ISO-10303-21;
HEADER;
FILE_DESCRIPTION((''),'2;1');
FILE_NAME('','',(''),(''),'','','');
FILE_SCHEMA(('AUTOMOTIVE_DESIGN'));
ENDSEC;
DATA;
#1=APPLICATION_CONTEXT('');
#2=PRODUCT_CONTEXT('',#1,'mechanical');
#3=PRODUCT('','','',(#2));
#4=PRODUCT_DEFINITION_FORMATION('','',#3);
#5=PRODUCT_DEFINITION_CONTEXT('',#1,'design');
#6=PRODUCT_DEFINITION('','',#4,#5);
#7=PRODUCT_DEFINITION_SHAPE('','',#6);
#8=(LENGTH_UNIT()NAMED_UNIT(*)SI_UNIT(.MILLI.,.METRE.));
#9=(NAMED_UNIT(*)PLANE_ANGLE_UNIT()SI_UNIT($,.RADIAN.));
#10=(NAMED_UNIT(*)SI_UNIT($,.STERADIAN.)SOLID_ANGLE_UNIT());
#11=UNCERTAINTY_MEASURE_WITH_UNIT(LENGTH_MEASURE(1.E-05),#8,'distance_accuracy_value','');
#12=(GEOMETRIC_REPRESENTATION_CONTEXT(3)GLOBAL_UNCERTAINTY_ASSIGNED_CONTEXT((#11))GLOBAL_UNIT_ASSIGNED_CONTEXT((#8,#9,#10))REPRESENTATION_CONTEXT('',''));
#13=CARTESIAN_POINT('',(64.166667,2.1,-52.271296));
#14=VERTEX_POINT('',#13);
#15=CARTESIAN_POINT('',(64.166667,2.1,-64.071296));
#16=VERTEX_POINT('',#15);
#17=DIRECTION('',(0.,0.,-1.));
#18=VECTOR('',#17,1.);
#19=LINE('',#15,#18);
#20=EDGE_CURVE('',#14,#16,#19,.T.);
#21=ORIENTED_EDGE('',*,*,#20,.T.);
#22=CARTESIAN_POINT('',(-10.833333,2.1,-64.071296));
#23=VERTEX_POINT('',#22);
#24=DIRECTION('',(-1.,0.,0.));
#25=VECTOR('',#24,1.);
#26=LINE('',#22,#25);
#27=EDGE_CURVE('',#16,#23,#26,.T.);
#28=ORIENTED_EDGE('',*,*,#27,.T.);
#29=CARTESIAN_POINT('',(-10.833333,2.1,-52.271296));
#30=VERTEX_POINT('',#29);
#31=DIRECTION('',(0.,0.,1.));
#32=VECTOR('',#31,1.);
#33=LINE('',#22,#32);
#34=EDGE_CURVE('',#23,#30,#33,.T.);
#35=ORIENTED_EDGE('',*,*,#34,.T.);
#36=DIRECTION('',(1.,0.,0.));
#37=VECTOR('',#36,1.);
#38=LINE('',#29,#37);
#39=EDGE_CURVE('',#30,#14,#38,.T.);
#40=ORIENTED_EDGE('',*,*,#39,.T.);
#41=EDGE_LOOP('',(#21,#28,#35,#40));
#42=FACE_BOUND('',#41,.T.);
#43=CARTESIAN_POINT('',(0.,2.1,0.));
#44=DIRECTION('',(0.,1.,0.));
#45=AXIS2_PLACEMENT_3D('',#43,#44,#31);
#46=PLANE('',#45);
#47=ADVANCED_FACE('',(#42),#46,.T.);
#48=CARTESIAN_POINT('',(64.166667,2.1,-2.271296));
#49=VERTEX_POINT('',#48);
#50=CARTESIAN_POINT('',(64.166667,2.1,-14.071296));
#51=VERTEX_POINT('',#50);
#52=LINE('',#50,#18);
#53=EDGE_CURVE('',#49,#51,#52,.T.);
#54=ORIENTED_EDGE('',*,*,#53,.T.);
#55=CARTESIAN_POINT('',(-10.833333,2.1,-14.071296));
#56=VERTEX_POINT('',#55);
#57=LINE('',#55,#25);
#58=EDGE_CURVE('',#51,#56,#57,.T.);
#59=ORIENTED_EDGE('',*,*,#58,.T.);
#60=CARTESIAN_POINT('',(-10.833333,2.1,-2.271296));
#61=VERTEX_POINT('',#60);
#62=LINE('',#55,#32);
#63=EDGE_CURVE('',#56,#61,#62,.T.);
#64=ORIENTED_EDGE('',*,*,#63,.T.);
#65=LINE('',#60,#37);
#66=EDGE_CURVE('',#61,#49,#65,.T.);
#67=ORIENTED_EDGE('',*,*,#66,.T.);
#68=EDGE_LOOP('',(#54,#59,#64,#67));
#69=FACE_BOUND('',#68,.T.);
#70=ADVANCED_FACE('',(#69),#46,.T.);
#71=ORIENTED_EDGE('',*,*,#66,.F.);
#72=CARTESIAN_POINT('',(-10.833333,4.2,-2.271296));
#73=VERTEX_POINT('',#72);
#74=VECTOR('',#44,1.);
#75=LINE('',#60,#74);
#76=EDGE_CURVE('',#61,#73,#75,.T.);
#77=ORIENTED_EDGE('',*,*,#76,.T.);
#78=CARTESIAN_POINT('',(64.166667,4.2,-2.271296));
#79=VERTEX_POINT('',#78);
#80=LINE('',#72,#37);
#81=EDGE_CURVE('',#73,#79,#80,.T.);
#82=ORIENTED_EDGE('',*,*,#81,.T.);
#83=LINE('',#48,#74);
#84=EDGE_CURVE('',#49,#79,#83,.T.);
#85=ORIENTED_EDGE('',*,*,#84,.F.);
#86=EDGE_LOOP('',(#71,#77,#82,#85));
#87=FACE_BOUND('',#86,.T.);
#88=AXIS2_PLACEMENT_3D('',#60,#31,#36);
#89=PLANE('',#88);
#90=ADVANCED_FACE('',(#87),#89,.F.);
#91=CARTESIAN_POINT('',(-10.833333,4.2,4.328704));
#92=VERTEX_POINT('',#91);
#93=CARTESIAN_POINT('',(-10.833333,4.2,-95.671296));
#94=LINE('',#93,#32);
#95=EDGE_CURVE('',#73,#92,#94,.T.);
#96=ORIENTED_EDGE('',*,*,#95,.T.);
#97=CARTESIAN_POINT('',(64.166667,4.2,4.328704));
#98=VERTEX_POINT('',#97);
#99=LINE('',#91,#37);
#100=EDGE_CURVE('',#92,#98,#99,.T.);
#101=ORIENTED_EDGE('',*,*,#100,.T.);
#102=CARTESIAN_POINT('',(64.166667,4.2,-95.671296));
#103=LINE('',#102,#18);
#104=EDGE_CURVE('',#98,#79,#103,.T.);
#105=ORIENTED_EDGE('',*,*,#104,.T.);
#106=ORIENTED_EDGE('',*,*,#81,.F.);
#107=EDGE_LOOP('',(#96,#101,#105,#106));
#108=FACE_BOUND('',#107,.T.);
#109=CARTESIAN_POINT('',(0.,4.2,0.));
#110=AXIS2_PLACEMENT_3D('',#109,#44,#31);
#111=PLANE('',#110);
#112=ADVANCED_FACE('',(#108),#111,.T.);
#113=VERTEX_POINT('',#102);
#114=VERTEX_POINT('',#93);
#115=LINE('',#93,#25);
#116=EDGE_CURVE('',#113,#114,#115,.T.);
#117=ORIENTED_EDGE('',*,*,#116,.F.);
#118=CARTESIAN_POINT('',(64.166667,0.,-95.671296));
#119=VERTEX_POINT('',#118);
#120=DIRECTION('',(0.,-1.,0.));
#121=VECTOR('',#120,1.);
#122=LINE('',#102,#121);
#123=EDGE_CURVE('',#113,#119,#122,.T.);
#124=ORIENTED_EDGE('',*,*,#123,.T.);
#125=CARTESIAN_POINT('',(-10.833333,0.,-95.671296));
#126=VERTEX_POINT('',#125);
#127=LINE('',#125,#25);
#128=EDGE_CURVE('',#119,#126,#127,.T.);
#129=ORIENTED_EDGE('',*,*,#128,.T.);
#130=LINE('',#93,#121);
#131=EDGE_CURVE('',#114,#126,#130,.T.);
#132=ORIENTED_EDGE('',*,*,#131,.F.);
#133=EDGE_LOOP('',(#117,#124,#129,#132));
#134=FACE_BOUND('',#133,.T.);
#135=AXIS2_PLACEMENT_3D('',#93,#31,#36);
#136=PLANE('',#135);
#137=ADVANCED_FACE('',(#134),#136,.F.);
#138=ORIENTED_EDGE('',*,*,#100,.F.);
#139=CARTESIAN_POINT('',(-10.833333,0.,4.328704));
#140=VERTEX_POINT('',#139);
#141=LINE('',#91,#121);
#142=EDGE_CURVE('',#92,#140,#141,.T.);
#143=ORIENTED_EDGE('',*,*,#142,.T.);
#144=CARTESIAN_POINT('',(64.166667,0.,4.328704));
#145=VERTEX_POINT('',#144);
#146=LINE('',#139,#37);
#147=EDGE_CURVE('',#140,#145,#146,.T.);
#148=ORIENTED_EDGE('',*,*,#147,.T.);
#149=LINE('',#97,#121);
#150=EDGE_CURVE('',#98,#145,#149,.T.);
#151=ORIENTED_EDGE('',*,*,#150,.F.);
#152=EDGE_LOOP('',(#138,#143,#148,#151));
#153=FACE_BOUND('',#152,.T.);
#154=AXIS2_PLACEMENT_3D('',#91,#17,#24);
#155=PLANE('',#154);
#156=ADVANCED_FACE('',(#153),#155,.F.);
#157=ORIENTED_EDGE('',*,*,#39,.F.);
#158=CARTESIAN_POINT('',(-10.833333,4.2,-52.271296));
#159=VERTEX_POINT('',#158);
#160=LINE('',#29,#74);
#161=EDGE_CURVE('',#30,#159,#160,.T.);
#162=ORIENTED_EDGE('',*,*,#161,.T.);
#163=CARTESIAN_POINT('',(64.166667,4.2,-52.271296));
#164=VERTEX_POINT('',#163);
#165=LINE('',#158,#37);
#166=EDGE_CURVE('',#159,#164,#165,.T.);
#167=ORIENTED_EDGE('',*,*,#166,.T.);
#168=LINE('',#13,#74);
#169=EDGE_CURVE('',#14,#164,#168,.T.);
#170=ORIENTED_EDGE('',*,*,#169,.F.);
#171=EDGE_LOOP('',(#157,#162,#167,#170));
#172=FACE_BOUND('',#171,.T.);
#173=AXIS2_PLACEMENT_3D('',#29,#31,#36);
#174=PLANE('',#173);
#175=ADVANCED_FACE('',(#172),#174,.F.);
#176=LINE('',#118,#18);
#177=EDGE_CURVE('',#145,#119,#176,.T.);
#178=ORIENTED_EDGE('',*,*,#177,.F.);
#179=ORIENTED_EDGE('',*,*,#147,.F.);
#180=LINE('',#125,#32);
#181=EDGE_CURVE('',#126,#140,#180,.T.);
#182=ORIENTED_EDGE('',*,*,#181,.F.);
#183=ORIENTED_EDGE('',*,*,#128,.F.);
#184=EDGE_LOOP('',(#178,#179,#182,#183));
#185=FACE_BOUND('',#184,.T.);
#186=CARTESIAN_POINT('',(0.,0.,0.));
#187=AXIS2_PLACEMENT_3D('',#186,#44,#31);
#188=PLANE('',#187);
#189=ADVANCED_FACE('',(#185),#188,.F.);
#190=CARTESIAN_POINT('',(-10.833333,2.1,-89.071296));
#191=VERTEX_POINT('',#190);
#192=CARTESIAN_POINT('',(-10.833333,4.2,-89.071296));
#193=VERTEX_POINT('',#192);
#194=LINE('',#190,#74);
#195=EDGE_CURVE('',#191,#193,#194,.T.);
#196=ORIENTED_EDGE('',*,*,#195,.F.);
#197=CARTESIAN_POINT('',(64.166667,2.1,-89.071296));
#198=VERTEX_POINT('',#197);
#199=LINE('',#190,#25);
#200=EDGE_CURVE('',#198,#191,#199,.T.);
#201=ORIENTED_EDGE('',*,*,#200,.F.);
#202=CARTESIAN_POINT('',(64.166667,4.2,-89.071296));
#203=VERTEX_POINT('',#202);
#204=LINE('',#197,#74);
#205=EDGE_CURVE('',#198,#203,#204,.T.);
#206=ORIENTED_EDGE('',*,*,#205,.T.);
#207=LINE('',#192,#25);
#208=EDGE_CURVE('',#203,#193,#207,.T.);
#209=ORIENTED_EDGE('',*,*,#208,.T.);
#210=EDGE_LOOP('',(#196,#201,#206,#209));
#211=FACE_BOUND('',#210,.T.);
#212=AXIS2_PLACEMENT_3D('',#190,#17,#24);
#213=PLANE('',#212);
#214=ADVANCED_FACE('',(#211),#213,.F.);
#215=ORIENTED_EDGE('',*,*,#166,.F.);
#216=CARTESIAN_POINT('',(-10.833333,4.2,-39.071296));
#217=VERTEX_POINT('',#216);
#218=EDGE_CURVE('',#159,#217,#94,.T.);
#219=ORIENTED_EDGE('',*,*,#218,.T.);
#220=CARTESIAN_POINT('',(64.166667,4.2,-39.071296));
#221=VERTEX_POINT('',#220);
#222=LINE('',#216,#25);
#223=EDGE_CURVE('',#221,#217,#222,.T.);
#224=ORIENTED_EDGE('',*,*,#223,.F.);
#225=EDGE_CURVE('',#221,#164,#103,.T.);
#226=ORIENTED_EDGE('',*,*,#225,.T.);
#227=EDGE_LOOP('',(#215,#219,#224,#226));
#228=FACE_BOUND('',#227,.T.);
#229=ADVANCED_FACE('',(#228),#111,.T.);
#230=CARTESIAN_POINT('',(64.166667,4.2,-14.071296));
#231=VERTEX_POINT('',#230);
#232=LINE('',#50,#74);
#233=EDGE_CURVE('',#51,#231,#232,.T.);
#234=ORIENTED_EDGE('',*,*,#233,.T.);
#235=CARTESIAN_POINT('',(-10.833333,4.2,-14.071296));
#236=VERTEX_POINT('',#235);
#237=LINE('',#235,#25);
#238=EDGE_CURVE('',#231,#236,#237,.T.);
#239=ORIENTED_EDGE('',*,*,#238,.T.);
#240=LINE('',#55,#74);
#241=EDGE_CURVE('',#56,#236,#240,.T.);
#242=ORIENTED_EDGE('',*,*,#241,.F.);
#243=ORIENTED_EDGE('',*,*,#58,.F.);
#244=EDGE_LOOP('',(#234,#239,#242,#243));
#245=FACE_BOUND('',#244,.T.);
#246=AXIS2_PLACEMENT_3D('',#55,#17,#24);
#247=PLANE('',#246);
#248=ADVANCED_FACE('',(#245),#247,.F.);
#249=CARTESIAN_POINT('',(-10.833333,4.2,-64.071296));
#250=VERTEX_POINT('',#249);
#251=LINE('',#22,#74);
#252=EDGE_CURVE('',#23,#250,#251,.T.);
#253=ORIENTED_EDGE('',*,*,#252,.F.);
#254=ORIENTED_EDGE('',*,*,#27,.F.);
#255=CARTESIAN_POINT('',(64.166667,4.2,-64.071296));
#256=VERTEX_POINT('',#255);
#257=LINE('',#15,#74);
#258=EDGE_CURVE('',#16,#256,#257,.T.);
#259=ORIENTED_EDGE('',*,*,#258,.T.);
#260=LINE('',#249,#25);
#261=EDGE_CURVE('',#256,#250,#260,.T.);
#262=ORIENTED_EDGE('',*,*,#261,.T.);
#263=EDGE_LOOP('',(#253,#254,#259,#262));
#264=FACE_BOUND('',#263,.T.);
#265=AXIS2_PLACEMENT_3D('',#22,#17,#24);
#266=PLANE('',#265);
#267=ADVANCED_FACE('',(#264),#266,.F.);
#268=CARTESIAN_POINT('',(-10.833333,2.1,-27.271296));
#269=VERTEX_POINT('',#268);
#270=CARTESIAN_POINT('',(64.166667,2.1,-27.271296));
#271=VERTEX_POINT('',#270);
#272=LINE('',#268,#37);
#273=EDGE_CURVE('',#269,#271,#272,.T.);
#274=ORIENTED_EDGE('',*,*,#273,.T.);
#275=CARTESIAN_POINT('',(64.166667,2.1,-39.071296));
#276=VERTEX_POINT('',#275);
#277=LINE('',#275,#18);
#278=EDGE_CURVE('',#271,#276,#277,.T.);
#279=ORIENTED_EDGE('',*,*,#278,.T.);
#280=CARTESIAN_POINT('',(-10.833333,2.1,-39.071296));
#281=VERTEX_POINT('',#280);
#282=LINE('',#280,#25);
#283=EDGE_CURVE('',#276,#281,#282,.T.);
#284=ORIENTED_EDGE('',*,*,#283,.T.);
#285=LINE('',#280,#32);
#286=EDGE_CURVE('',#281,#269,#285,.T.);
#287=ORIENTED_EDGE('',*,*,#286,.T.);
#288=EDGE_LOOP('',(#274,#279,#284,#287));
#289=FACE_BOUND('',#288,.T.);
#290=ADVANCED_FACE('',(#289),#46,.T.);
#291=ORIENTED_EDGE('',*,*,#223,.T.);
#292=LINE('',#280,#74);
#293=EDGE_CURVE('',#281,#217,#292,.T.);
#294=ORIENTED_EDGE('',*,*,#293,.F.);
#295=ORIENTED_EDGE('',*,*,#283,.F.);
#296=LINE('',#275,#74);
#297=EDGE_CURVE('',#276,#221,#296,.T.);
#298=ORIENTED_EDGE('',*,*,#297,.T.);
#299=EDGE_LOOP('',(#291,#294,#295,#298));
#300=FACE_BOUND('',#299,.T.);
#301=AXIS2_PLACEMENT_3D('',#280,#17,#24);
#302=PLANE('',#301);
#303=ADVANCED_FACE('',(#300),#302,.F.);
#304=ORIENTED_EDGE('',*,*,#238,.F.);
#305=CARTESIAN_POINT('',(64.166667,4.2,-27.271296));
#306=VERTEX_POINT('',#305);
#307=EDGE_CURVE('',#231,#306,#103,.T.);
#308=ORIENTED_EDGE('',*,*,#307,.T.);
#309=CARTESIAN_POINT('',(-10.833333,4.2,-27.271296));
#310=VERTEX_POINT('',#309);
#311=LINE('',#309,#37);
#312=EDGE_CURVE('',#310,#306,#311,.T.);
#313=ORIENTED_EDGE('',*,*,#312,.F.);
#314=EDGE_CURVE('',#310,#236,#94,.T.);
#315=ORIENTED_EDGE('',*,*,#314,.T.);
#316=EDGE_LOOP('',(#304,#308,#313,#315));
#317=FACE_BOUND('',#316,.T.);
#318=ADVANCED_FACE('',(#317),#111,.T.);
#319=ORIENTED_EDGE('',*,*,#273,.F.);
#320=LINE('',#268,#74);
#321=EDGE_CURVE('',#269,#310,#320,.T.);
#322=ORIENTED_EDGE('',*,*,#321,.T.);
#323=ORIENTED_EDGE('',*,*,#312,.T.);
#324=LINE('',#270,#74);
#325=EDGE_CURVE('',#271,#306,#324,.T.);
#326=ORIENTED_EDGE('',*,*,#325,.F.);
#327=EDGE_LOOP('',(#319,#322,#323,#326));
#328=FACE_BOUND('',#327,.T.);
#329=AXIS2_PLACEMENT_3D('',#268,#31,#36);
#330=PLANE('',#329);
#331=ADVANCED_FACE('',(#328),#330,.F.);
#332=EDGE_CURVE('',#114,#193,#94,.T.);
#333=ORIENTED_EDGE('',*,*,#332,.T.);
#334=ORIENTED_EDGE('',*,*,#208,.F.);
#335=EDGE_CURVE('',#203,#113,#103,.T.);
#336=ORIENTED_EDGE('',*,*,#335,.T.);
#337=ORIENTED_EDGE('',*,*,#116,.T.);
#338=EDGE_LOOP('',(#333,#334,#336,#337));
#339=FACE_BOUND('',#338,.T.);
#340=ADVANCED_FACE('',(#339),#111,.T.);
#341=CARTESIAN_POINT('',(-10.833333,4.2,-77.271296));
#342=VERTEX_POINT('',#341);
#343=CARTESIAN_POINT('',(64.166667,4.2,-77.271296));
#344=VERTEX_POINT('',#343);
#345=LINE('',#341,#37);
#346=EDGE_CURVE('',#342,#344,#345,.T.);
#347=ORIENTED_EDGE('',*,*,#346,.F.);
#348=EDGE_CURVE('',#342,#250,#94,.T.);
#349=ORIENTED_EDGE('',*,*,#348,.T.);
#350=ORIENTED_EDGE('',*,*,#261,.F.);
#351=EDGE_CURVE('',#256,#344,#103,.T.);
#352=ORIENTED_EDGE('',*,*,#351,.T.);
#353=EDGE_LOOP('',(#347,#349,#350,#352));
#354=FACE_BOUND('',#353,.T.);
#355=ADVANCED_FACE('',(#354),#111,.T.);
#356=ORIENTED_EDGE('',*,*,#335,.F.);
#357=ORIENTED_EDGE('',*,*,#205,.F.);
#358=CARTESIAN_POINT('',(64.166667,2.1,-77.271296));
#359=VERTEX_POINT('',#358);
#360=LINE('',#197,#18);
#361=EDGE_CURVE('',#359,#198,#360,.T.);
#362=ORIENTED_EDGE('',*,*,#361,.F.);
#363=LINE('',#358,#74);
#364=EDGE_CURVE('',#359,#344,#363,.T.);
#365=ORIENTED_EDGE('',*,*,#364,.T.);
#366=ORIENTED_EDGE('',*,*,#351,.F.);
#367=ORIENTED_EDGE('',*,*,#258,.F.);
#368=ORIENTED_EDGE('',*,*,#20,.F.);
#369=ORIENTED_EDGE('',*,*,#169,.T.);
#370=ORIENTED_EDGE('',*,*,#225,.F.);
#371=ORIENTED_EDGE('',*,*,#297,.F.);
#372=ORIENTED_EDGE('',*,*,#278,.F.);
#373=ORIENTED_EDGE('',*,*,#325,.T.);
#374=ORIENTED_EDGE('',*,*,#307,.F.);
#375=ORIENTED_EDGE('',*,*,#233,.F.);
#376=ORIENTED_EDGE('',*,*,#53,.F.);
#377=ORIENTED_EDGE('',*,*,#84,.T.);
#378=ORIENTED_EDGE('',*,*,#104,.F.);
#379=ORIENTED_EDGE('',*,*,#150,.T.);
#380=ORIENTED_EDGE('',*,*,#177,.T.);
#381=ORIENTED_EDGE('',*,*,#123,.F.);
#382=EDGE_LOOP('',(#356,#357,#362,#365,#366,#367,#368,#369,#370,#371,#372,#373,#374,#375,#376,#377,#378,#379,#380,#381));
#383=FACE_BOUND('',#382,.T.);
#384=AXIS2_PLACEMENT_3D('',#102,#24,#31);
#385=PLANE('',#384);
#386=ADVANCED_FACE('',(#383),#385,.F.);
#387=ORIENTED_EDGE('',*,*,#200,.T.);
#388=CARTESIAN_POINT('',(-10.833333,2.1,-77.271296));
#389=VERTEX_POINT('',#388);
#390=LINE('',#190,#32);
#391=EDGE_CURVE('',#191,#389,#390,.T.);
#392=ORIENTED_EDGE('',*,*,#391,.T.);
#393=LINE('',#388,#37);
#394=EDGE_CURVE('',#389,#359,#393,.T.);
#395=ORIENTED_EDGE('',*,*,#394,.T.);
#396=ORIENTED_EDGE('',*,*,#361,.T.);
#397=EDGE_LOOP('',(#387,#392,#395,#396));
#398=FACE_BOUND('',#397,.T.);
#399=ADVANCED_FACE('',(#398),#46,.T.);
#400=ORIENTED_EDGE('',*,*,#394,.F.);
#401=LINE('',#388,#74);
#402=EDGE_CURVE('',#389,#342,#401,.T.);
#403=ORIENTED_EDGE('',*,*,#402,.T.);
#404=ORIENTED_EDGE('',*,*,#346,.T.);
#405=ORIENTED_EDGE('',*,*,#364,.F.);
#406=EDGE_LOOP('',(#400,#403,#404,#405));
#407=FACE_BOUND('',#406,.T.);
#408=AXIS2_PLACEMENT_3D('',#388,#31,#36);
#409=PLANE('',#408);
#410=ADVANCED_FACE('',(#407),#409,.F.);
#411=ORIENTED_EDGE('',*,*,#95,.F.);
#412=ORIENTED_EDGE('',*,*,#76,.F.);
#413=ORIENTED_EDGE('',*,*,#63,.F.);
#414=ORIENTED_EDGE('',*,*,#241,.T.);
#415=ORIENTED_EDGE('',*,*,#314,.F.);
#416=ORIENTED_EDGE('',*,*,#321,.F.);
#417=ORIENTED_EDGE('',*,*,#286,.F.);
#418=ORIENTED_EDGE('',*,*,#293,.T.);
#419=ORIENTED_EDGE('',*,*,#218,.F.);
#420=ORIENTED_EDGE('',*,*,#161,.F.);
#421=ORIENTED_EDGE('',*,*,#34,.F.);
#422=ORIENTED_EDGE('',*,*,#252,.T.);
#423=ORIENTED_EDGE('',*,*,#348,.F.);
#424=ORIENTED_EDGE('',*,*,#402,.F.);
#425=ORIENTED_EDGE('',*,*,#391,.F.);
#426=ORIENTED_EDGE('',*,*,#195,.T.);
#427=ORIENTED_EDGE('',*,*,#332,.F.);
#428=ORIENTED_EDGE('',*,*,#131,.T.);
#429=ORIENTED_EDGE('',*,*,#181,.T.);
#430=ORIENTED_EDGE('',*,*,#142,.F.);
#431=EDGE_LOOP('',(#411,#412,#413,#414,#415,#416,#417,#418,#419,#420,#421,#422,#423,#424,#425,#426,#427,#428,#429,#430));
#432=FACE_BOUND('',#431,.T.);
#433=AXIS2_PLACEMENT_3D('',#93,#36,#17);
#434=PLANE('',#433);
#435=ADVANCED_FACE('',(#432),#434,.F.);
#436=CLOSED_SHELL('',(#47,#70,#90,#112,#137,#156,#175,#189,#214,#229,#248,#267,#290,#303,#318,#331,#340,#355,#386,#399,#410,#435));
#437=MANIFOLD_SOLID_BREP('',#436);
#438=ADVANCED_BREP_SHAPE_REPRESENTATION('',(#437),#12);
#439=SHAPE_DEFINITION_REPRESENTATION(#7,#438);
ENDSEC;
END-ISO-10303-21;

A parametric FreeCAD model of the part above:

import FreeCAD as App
import Part
import Sketcher

V = App.Vector


def add_polygon(sketch, points):
    """Adds a closed chain of lines whose ends are joined by coincident constraints."""
    first, n = sketch.GeometryCount, len(points)
    for a, b in zip(points, points[1:] + points[:1]):
        sketch.addGeometry(Part.LineSegment(App.Vector(*a, 0), App.Vector(*b, 0)), False)
    for i in range(n):
        sketch.addConstraint(Sketcher.Constraint("Coincident", first + i, 2, first + (i + 1) % n, 1))

doc = App.newDocument("Part")
body = doc.addObject("PartDesign::Body", "Body")

# Sketch on XZ plane
sketch1 = body.newObject("Sketcher::SketchObject", "Sketch")
sketch1.AttachmentSupport = (doc.getObject("XZ_Plane"), [""])
sketch1.MapMode = "FlatFace"
add_polygon(sketch1, [(-10.833333, -95.671296), (-10.833333, 4.328704), (64.166667, 4.328704), (64.166667, -95.671296)])  # lines 0-3
sketch1.addConstraint(Sketcher.Constraint("Vertical", 0))
sketch1.addConstraint(Sketcher.Constraint("Horizontal", 1))
sketch1.addConstraint(Sketcher.Constraint("Vertical", 2))
sketch1.addConstraint(Sketcher.Constraint("Horizontal", 3))
sketch1.addConstraint(Sketcher.Constraint("DistanceX", 1, 1, 1, 2, 75.0))
sketch1.addConstraint(Sketcher.Constraint("DistanceY", 0, 1, 0, 2, 100.0))
sketch1.addConstraint(Sketcher.Constraint("DistanceX", 0, 2, -1, 1, 10.833333))
sketch1.addConstraint(Sketcher.Constraint("DistanceY", -1, 1, 0, 2, 4.328704))
pad1 = body.newObject("PartDesign::Pad", "Pad")
pad1.Profile = sketch1
pad1.Length = 4.2
pad1.Reversed = True

# Sketch on XZ plane
sketch2 = body.newObject("Sketcher::SketchObject", "Sketch001")
sketch2.AttachmentSupport = (doc.getObject("XZ_Plane"), [""])
sketch2.MapMode = "FlatFace"
sketch2.AttachmentOffset = App.Placement(V(0, 0, -4.2), App.Rotation())
add_polygon(sketch2, [(-10.833333, -89.071296), (-10.833333, -77.271296), (64.166667, -77.271296), (64.166667, -89.071296)])  # lines 0-3
add_polygon(sketch2, [(-10.833333, -64.071296), (-10.833333, -52.271296), (64.166667, -52.271296), (64.166667, -64.071296)])  # lines 4-7
add_polygon(sketch2, [(-10.833333, -39.071296), (-10.833333, -27.271296), (64.166667, -27.271296), (64.166667, -39.071296)])  # lines 8-11
add_polygon(sketch2, [(-10.833333, -14.071296), (-10.833333, -2.271296), (64.166667, -2.271296), (64.166667, -14.071296)])  # lines 12-15
sketch2.addConstraint(Sketcher.Constraint("Vertical", 0))
sketch2.addConstraint(Sketcher.Constraint("Horizontal", 1))
sketch2.addConstraint(Sketcher.Constraint("Vertical", 2))
sketch2.addConstraint(Sketcher.Constraint("Horizontal", 3))
sketch2.addConstraint(Sketcher.Constraint("Vertical", 4))
sketch2.addConstraint(Sketcher.Constraint("Horizontal", 5))
sketch2.addConstraint(Sketcher.Constraint("Vertical", 6))
sketch2.addConstraint(Sketcher.Constraint("Horizontal", 7))
sketch2.addConstraint(Sketcher.Constraint("Vertical", 8))
sketch2.addConstraint(Sketcher.Constraint("Horizontal", 9))
sketch2.addConstraint(Sketcher.Constraint("Vertical", 10))
sketch2.addConstraint(Sketcher.Constraint("Horizontal", 11))
sketch2.addConstraint(Sketcher.Constraint("Vertical", 12))
sketch2.addConstraint(Sketcher.Constraint("Horizontal", 13))
sketch2.addConstraint(Sketcher.Constraint("Vertical", 14))
sketch2.addConstraint(Sketcher.Constraint("Horizontal", 15))
sketch2.addConstraint(Sketcher.Constraint("Vertical", 3, 2, 4, 2))
sketch2.addConstraint(Sketcher.Constraint("Vertical", 2, 2, 5, 2))
sketch2.addConstraint(Sketcher.Constraint("Vertical", 7, 2, 8, 2))
sketch2.addConstraint(Sketcher.Constraint("Vertical", 6, 2, 9, 2))
sketch2.addConstraint(Sketcher.Constraint("Vertical", 11, 2, 12, 2))
sketch2.addConstraint(Sketcher.Constraint("Vertical", 10, 2, 13, 2))
sketch2.addConstraint(Sketcher.Constraint("Equal", 2, 4))
sketch2.addConstraint(Sketcher.Constraint("Equal", 6, 8))
sketch2.addConstraint(Sketcher.Constraint("Equal", 10, 12))
sketch2.addConstraint(Sketcher.Constraint("DistanceX", 1, 1, 1, 2, 75.0))
sketch2.addConstraint(Sketcher.Constraint("DistanceY", 0, 1, 0, 2, 11.8))
sketch2.addConstraint(Sketcher.Constraint("DistanceY", 0, 2, 4, 2, 25.0))
sketch2.addConstraint(Sketcher.Constraint("DistanceY", 4, 2, 8, 2, 25.0))
sketch2.addConstraint(Sketcher.Constraint("DistanceY", 8, 2, 12, 2, 25.0))
sketch2.addConstraint(Sketcher.Constraint("DistanceX", 0, 2, -1, 1, 10.833333))
sketch2.addConstraint(Sketcher.Constraint("DistanceY", 0, 2, -1, 1, 77.271296))
pocket1 = body.newObject("PartDesign::Pocket", "Pocket")
pocket1.Profile = sketch2
pocket1.Length = 2.1
pocket1.Reversed = True

doc.recompute()
